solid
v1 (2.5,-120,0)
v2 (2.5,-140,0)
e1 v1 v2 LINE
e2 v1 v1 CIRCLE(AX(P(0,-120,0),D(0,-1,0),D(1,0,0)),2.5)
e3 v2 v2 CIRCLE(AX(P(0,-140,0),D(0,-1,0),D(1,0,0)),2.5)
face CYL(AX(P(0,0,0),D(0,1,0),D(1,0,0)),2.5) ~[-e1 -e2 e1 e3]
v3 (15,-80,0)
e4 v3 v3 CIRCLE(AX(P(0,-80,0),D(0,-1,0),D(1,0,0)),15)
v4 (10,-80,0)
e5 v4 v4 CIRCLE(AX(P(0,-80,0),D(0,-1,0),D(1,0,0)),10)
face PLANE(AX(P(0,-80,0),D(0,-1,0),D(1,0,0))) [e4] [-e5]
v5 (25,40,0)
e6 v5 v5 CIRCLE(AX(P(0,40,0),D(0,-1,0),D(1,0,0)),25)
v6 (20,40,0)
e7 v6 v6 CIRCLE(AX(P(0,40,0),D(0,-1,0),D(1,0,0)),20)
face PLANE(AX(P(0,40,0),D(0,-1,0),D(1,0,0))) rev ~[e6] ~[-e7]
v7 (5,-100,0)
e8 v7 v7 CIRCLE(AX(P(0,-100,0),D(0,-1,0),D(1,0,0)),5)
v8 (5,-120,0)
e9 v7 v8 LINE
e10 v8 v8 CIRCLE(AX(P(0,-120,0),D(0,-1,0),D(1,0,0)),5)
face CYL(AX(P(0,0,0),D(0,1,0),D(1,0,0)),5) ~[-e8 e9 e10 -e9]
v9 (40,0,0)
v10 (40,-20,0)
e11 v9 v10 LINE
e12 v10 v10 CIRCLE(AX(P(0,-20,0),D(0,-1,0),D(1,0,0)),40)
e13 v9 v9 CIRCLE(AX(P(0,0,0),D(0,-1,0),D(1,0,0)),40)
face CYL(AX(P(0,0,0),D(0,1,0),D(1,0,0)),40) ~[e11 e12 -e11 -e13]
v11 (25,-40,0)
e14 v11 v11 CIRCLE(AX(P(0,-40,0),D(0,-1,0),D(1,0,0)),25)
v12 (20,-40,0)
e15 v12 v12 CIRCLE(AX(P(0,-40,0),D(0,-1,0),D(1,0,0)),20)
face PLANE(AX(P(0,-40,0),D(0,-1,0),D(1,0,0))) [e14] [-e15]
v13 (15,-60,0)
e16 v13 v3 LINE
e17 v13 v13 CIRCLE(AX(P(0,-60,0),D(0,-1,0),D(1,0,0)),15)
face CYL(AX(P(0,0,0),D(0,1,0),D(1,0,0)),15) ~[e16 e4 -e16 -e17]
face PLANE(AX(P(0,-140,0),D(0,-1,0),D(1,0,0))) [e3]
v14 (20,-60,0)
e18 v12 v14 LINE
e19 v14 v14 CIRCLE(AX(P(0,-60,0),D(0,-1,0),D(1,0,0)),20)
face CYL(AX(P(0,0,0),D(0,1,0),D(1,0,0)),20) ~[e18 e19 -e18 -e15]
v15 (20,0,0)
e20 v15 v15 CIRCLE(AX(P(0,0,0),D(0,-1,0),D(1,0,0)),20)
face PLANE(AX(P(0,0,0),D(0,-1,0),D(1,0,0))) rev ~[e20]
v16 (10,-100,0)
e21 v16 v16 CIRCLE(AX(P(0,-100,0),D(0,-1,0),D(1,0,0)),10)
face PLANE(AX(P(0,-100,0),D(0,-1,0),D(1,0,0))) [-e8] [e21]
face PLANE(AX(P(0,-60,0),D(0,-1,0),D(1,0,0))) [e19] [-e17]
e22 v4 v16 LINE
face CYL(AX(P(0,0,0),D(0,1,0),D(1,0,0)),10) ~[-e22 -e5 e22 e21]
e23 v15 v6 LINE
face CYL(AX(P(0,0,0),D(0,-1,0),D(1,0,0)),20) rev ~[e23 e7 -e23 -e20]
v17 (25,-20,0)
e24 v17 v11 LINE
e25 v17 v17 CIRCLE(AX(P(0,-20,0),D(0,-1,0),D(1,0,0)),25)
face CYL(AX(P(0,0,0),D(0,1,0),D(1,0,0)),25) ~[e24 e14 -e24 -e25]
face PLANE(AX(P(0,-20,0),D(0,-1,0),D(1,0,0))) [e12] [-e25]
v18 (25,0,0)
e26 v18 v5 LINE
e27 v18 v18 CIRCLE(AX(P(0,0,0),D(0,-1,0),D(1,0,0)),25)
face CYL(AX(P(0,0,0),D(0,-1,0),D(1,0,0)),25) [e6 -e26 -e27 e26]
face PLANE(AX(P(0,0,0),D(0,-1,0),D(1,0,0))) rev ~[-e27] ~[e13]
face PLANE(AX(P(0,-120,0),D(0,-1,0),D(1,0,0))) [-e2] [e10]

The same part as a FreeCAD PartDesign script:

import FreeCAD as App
import Part
import Sketcher
from FreeCAD import Vector
Q = App.Units.Quantity

doc = App.newDocument("Part")
body = doc.addObject("PartDesign::Body", "Body")

# Sketch on XZ plane
sketch1 = body.newObject("Sketcher::SketchObject", "Sketch")
sketch1.AttachmentSupport = (doc.getObject("XZ_Plane"), [""])
sketch1.MapMode = "FlatFace"
sketch1.addGeometry(Part.Circle(Vector(0, 0, 0), Vector(0, 0, 1), 2.5), False)
sketch1.addConstraint(Sketcher.Constraint("Coincident", 0, 3, -1, 1))
sketch1.addConstraint(Sketcher.Constraint("Diameter", 0, Q("5 mm")))
pad1 = body.newObject("PartDesign::Pad", "Pad")
pad1.Profile = sketch1
pad1.Length = 140

# Sketch on XZ plane
sketch2 = body.newObject("Sketcher::SketchObject", "Sketch001")
sketch2.AttachmentSupport = (doc.getObject("XZ_Plane"), [""])
sketch2.MapMode = "FlatFace"
sketch2.addGeometry(Part.Circle(Vector(0, 0, 0), Vector(0, 0, 1), 5), False)
sketch2.addGeometry(Part.Circle(Vector(0, 0, 0), Vector(0, 0, 1), 2.5), False)
sketch2.addConstraint(Sketcher.Constraint("Coincident", 0, 3, -1, 1))
sketch2.addConstraint(Sketcher.Constraint("Coincident", 1, 3, -1, 1))
sketch2.addConstraint(Sketcher.Constraint("Diameter", 0, Q("10 mm")))
sketch2.addConstraint(Sketcher.Constraint("Diameter", 1, Q("5 mm")))
pad2 = body.newObject("PartDesign::Pad", "Pad001")
pad2.Profile = sketch2
pad2.Length = 120

# Sketch on XZ plane
sketch3 = body.newObject("Sketcher::SketchObject", "Sketch002")
sketch3.AttachmentSupport = (doc.getObject("XZ_Plane"), [""])
sketch3.MapMode = "FlatFace"
sketch3.addGeometry(Part.Circle(Vector(0, 0, 0), Vector(0, 0, 1), 10), False)
sketch3.addGeometry(Part.Circle(Vector(0, 0, 0), Vector(0, 0, 1), 5), False)
sketch3.addConstraint(Sketcher.Constraint("Coincident", 0, 3, -1, 1))
sketch3.addConstraint(Sketcher.Constraint("Coincident", 1, 3, -1, 1))
sketch3.addConstraint(Sketcher.Constraint("Diameter", 0, Q("20 mm")))
sketch3.addConstraint(Sketcher.Constraint("Diameter", 1, Q("10 mm")))
pad3 = body.newObject("PartDesign::Pad", "Pad002")
pad3.Profile = sketch3
pad3.Length = 100

# Sketch on XZ plane
sketch4 = body.newObject("Sketcher::SketchObject", "Sketch003")
sketch4.AttachmentSupport = (doc.getObject("XZ_Plane"), [""])
sketch4.MapMode = "FlatFace"
sketch4.addGeometry(Part.Circle(Vector(0, 0, 0), Vector(0, 0, 1), 15), False)
sketch4.addGeometry(Part.Circle(Vector(0, 0, 0), Vector(0, 0, 1), 10), False)
sketch4.addConstraint(Sketcher.Constraint("Coincident", 0, 3, -1, 1))
sketch4.addConstraint(Sketcher.Constraint("Coincident", 1, 3, -1, 1))
sketch4.addConstraint(Sketcher.Constraint("Diameter", 0, Q("30 mm")))
sketch4.addConstraint(Sketcher.Constraint("Diameter", 1, Q("20 mm")))
pad4 = body.newObject("PartDesign::Pad", "Pad003")
pad4.Profile = sketch4
pad4.Length = 80

# Sketch on XZ plane
sketch5 = body.newObject("Sketcher::SketchObject", "Sketch004")
sketch5.AttachmentSupport = (doc.getObject("XZ_Plane"), [""])
sketch5.MapMode = "FlatFace"
sketch5.addGeometry(Part.Circle(Vector(0, 0, 0), Vector(0, 0, 1), 20), False)
sketch5.addGeometry(Part.Circle(Vector(0, 0, 0), Vector(0, 0, 1), 15), False)
sketch5.addConstraint(Sketcher.Constraint("Coincident", 0, 3, -1, 1))
sketch5.addConstraint(Sketcher.Constraint("Coincident", 1, 3, -1, 1))
sketch5.addConstraint(Sketcher.Constraint("Diameter", 0, Q("40 mm")))
sketch5.addConstraint(Sketcher.Constraint("Diameter", 1, Q("30 mm")))
pad5 = body.newObject("PartDesign::Pad", "Pad004")
pad5.Profile = sketch5
pad5.Length = 60

# Sketch on XZ plane
sketch6 = body.newObject("Sketcher::SketchObject", "Sketch005")
sketch6.AttachmentSupport = (doc.getObject("XZ_Plane"), [""])
sketch6.MapMode = "FlatFace"
sketch6.addGeometry(Part.Circle(Vector(0, 0, 0), Vector(0, 0, 1), 25), False)
sketch6.addGeometry(Part.Circle(Vector(0, 0, 0), Vector(0, 0, 1), 20), False)
sketch6.addConstraint(Sketcher.Constraint("Coincident", 0, 3, -1, 1))
sketch6.addConstraint(Sketcher.Constraint("Coincident", 1, 3, -1, 1))
sketch6.addConstraint(Sketcher.Constraint("Diameter", 0, Q("50 mm")))
sketch6.addConstraint(Sketcher.Constraint("Diameter", 1, Q("40 mm")))
pad6 = body.newObject("PartDesign::Pad", "Pad005")
pad6.Profile = sketch6
pad6.Length = 40

# Sketch on XZ plane
sketch7 = body.newObject("Sketcher::SketchObject", "Sketch006")
sketch7.AttachmentSupport = (doc.getObject("XZ_Plane"), [""])
sketch7.MapMode = "FlatFace"
sketch7.addGeometry(Part.Circle(Vector(0, 0, 0), Vector(0, 0, 1), 40), False)
sketch7.addGeometry(Part.Circle(Vector(0, 0, 0), Vector(0, 0, 1), 25), False)
sketch7.addConstraint(Sketcher.Constraint("Coincident", 0, 3, -1, 1))
sketch7.addConstraint(Sketcher.Constraint("Coincident", 1, 3, -1, 1))
sketch7.addConstraint(Sketcher.Constraint("Diameter", 0, Q("80 mm")))
sketch7.addConstraint(Sketcher.Constraint("Diameter", 1, Q("50 mm")))
pad7 = body.newObject("PartDesign::Pad", "Pad006")
pad7.Profile = sketch7
pad7.Length = 20

# Sketch on XZ plane
sketch8 = body.newObject("Sketcher::SketchObject", "Sketch007")
sketch8.AttachmentSupport = (doc.getObject("XZ_Plane"), [""])
sketch8.MapMode = "FlatFace"
sketch8.addGeometry(Part.Circle(Vector(0, 0, 0), Vector(0, 0, 1), 25), False)
sketch8.addGeometry(Part.Circle(Vector(0, 0, 0), Vector(0, 0, 1), 20), False)
sketch8.addConstraint(Sketcher.Constraint("Coincident", 0, 3, -1, 1))
sketch8.addConstraint(Sketcher.Constraint("Coincident", 1, 3, -1, 1))
sketch8.addConstraint(Sketcher.Constraint("Diameter", 0, Q("50 mm")))
sketch8.addConstraint(Sketcher.Constraint("Diameter", 1, Q("40 mm")))
pad8 = body.newObject("PartDesign::Pad", "Pad007")
pad8.Profile = sketch8
pad8.Length = 40
pad8.Reversed = True

doc.recompute()
